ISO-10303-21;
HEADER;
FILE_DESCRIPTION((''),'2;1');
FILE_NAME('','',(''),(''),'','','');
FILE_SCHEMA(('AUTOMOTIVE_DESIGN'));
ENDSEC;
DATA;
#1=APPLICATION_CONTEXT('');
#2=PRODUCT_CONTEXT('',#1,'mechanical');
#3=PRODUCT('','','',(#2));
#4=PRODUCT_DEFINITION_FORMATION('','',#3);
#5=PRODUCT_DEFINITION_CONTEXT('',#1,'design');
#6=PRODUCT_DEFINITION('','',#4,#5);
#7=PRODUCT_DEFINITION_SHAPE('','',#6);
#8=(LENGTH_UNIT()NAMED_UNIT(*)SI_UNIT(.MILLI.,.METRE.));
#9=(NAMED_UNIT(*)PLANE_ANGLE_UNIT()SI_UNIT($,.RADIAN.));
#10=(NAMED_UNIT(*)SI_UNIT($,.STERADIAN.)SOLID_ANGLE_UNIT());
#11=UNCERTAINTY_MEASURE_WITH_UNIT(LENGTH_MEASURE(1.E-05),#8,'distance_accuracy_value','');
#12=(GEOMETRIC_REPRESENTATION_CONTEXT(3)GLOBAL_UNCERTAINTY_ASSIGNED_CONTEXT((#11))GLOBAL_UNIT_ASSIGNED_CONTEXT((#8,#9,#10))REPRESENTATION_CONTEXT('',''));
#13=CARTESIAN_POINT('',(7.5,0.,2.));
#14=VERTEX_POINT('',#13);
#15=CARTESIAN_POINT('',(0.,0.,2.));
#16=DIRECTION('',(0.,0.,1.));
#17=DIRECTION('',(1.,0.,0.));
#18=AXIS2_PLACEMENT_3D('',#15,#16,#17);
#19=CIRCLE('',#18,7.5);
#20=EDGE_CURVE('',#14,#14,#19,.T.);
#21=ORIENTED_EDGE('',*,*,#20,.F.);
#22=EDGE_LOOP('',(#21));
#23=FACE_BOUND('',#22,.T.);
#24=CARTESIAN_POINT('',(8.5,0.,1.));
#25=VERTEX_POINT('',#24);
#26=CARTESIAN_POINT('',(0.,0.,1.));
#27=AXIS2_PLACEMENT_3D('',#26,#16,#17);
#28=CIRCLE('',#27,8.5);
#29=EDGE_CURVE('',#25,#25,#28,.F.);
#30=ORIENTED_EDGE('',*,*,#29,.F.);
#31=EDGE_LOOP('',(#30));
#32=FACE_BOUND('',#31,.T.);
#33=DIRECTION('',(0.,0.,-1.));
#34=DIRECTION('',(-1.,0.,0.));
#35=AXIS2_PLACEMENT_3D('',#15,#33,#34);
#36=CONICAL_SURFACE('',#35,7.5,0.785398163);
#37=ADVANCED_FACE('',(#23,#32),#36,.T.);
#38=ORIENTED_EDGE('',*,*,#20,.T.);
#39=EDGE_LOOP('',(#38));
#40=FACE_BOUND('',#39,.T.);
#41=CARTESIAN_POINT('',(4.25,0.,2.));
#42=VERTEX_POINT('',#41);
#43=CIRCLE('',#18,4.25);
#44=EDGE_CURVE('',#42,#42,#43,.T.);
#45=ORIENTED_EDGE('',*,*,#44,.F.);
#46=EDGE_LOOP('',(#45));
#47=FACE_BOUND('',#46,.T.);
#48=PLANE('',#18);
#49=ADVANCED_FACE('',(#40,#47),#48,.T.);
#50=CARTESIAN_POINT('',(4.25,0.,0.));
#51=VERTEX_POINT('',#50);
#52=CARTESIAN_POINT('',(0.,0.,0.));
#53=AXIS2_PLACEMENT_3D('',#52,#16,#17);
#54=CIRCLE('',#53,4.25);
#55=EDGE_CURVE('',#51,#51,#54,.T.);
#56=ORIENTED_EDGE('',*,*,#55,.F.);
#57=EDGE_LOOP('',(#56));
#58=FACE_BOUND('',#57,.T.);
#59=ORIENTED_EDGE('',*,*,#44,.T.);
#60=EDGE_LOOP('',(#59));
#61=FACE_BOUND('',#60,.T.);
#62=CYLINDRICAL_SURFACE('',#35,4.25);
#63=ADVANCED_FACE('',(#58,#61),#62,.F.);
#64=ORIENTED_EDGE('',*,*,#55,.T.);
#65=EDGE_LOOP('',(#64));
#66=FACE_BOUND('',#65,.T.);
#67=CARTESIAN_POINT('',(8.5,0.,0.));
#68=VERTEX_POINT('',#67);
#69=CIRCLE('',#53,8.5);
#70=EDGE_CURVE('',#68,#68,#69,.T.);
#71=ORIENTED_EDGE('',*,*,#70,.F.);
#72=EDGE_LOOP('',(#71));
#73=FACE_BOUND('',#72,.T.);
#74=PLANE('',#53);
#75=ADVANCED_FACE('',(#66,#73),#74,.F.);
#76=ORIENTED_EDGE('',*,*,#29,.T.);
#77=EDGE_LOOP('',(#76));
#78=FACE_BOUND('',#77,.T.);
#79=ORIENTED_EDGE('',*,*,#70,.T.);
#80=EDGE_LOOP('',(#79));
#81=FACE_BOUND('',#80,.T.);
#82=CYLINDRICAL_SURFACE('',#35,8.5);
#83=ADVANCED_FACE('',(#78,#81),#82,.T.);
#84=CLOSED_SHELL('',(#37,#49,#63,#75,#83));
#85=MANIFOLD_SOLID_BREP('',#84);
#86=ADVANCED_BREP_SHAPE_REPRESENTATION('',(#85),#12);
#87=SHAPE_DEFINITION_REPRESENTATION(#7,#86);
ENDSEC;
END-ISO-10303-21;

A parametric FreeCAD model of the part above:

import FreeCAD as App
import Part
import Sketcher

V = App.Vector
Q = App.Units.Quantity


def edges_at(feature, points):
    """Names of the edges that pass closest to the given points."""
    edges = feature.Shape.Edges
    near = lambda p: min(range(len(edges)), key=lambda i: edges[i].distToShape(Part.Vertex(*p))[0])
    return sorted({f"Edge{near(p) + 1}" for p in points})

doc = App.newDocument("Part")
body = doc.addObject("PartDesign::Body", "Body")

# Sketch on XY plane
sketch1 = body.newObject("Sketcher::SketchObject", "Sketch")
sketch1.AttachmentSupport = (doc.getObject("XY_Plane"), [""])
sketch1.MapMode = "FlatFace"
sketch1.addGeometry([
    Part.Circle(V(0, 0, 0), V(0, 0, 1), 8.5),
    Part.Circle(V(0, 0, 0), V(0, 0, 1), 4.2),
], False)
sketch1.addConstraint([
    Sketcher.Constraint("Coincident", 0, 3, -1, 1),
    Sketcher.Constraint("Coincident", 1, 3, -1, 1),
    Sketcher.Constraint("Diameter", 0, Q("17 mm")),
    Sketcher.Constraint("Diameter", 1, Q("8.5 mm")),
])
pad1 = body.newObject("PartDesign::Pad", "Pad")
pad1.Profile = sketch1
pad1.Length = 2
doc.recompute()

chamfer = body.newObject("PartDesign::Chamfer", "Chamfer")
chamfer.Base = (pad1, edges_at(pad1, [(-8.5, 0, 2)]))
chamfer.Size = 1

doc.recompute()
